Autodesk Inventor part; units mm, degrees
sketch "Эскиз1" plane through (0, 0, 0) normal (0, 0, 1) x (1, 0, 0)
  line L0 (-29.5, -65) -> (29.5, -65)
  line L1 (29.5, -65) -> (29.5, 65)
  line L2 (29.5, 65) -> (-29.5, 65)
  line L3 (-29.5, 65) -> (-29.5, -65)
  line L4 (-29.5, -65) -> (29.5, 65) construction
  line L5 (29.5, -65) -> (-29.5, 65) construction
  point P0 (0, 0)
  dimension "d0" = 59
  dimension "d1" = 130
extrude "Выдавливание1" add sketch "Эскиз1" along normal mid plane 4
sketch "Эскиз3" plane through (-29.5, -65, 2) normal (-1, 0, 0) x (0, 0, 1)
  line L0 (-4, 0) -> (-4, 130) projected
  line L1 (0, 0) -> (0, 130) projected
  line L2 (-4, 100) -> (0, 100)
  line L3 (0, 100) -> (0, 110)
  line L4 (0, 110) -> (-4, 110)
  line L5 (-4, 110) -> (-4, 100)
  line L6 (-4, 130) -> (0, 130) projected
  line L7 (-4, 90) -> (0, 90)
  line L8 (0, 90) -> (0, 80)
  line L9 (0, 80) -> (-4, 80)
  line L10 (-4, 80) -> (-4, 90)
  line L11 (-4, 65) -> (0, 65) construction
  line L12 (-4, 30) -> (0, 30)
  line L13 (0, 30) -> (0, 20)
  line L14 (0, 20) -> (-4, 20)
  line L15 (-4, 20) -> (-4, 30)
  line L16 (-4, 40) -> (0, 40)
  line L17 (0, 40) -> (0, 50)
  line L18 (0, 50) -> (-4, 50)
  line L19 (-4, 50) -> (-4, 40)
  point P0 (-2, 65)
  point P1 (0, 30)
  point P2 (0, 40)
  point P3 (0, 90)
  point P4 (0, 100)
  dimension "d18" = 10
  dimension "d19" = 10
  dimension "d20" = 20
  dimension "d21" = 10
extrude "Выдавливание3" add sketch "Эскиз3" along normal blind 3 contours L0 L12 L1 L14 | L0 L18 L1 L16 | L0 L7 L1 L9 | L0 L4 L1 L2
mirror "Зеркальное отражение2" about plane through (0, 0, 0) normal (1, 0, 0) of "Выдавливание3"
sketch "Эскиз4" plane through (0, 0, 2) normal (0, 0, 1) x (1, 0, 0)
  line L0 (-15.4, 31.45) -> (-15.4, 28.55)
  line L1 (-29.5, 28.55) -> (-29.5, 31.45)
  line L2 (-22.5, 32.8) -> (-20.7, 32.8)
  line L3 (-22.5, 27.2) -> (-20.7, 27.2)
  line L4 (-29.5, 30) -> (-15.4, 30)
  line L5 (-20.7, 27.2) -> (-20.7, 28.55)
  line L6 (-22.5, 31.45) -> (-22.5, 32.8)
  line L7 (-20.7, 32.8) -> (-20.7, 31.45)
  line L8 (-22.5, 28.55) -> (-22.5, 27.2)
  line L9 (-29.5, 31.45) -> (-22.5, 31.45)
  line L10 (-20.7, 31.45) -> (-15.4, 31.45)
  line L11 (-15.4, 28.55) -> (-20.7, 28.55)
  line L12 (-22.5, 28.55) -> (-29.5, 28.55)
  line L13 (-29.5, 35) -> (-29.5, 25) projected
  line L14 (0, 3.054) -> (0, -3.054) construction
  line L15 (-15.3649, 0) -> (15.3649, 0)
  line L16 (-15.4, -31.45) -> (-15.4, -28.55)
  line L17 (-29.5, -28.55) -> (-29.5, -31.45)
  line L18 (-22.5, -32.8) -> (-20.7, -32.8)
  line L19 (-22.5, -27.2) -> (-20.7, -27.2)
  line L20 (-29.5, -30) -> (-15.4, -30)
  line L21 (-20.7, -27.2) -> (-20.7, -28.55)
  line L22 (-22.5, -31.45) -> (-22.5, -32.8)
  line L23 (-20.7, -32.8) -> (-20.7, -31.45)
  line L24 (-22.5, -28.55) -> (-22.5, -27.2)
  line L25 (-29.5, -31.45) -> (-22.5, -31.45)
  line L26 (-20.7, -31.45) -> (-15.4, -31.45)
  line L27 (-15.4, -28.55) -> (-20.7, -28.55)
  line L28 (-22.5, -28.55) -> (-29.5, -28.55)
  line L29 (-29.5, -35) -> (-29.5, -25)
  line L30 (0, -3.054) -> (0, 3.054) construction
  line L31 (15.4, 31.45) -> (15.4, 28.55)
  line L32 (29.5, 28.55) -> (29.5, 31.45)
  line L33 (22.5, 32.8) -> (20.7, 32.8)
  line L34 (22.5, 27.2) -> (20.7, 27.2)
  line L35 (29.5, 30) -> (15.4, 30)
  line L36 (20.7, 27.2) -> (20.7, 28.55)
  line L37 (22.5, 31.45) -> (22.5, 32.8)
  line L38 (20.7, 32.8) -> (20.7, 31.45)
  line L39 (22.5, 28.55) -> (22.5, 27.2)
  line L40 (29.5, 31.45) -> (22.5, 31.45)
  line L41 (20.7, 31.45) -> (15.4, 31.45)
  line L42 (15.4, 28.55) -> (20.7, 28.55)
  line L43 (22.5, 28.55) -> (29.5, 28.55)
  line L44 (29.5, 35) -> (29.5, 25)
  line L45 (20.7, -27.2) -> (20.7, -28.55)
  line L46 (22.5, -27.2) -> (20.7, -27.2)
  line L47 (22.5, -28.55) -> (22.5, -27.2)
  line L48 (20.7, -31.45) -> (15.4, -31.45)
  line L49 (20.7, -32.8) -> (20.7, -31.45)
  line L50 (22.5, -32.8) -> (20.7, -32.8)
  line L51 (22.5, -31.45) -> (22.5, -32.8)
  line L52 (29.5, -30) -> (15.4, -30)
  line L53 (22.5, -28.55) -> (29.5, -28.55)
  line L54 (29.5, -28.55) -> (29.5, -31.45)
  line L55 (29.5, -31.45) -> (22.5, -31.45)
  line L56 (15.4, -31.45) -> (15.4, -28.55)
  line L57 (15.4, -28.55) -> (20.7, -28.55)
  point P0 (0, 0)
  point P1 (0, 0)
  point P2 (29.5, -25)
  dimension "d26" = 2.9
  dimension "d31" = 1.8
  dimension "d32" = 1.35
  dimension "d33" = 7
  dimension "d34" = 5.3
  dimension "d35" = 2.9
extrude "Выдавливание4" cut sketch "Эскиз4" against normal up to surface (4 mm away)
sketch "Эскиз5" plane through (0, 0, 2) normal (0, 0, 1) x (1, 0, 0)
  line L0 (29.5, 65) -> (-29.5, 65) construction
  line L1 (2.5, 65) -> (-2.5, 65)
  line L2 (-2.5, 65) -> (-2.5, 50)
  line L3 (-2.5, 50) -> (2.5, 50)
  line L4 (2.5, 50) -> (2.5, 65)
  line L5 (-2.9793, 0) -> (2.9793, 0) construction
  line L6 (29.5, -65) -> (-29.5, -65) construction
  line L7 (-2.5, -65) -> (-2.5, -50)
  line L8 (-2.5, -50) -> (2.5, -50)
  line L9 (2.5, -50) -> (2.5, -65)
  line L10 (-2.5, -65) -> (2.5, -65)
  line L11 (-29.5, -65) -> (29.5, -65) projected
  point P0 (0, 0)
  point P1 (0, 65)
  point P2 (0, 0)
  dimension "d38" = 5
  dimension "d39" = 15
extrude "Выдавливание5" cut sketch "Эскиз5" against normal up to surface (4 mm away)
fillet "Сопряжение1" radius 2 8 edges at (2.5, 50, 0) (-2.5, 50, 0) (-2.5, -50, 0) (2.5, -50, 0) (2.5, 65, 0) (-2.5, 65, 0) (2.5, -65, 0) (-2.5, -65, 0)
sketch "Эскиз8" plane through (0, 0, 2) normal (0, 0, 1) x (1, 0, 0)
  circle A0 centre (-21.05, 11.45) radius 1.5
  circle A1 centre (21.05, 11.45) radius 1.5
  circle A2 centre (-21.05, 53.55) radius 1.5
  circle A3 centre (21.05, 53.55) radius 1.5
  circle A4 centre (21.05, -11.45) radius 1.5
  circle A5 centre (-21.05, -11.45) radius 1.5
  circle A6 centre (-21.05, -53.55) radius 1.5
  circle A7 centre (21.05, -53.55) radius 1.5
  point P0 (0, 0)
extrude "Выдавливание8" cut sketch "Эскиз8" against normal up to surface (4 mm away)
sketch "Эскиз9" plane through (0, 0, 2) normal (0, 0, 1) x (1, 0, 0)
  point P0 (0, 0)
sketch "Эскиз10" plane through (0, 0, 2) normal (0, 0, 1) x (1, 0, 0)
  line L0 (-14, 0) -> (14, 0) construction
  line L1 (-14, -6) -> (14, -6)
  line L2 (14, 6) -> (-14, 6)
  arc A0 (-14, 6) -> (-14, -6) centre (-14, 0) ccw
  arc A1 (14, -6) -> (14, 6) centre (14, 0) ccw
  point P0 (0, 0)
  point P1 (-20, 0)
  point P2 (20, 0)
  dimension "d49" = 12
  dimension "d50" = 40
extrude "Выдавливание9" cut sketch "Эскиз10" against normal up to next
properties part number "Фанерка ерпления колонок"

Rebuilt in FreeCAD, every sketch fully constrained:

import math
import FreeCAD as App
import Part
import Sketcher


def edges_at(feature, points):
    """Names of the edges that pass closest to the given points."""
    edges = feature.Shape.Edges
    near = lambda p: min(range(len(edges)), key=lambda i: edges[i].distToShape(Part.Vertex(*p))[0])
    return sorted({f"Edge{near(p) + 1}" for p in points})


def add_polygon(sketch, points):
    """Adds a closed chain of lines whose ends are joined by coincident constraints."""
    first, n = sketch.GeometryCount, len(points)
    for a, b in zip(points, points[1:] + points[:1]):
        sketch.addGeometry(Part.LineSegment(App.Vector(*a, 0), App.Vector(*b, 0)), False)
    for i in range(n):
        sketch.addConstraint(Sketcher.Constraint("Coincident", first + i, 2, first + (i + 1) % n, 1))

doc = App.newDocument("Part")
params = doc.addObject("Spreadsheet::Sheet", "Params")
for row, (alias, value) in enumerate([
    ("sketch1_width", "59 mm"),
    ("sketch1_height", "130 mm"),
    ("pad1_length", "4 mm"),
    ("sketch2_width", "10 mm"),
    ("sketch2_height", "4 mm"),
    ("pad2_length", "3 mm"),
    ("sketch3_width", "7 mm"),
    ("sketch3_width2", "5.3 mm"),
    ("sketch3_width3", "1.8 mm"),
    ("sketch3_height", "2.9 mm"),
    ("sketch3_height2", "1.35 mm"),
    ("pocket1_length", "4 mm"),
    ("sketch4_width", "5 mm"),
    ("sketch4_height", "15 mm"),
    ("pocket2_length", "4 mm"),
    ("fillet_radius", "2 mm"),
    ("sketch5_diameter", "3 mm"),
    ("pocket3_length", "4 mm"),
    ("sketch6_radius", "6 mm"),
    ("sketch6_width", "28 mm"),
], start=1):
    params.set(f"A{row}", alias)
    params.set(f"B{row}", "=" + value)
    params.setAlias(f"B{row}", alias)

body = doc.addObject("PartDesign::Body", "Body")

# Sketch on XY plane
sketch1 = body.newObject("Sketcher::SketchObject", "Sketch")
sketch1.AttachmentSupport = (doc.getObject("XY_Plane"), [""])
sketch1.MapMode = "FlatFace"
add_polygon(sketch1, [(-30, 65), (-30, -65), (30, -65), (30, 65)])  # lines 0-3
sketch1.addConstraint(Sketcher.Constraint("Vertical", 0))
sketch1.addConstraint(Sketcher.Constraint("Horizontal", 1))
sketch1.addConstraint(Sketcher.Constraint("Vertical", 2))
sketch1.addConstraint(Sketcher.Constraint("Horizontal", 3))
sketch1.addConstraint(Sketcher.Constraint("Symmetric", 0, 2, 2, 2, -1, 1))
sketch1.addConstraint(Sketcher.Constraint("DistanceX", 1, 1, 1, 2, 59.0))
sketch1.addConstraint(Sketcher.Constraint("DistanceY", 0, 2, 0, 1, 130.0))
sketch1.setExpression("Constraints[9]", "Params.sketch1_width")
sketch1.setExpression("Constraints[10]", "Params.sketch1_height")
pad1 = body.newObject("PartDesign::Pad", "Pad")
pad1.Profile = sketch1
pad1.setExpression("Length", "Params.pad1_length")
pad1.Midplane = True

# Sketch on YZ plane
sketch2 = body.newObject("Sketcher::SketchObject", "Sketch001")
sketch2.AttachmentSupport = (doc.getObject("YZ_Plane"), [""])
sketch2.MapMode = "FlatFace"
sketch2.AttachmentOffset = App.Placement(App.Vector(0, 0, -29.5), App.Rotation())
add_polygon(sketch2, [(-35, -2), (-45, -2), (-45, 2), (-35, 2)])  # lines 0-3
add_polygon(sketch2, [(-15, -2), (-25, -2), (-25, 2), (-15, 2)])  # lines 4-7
add_polygon(sketch2, [(25, -2), (15, -2), (15, 2), (25, 2)])  # lines 8-11
add_polygon(sketch2, [(45, -2), (35, -2), (35, 2), (45, 2)])  # lines 12-15
sketch2.addConstraint(Sketcher.Constraint("Horizontal", 0))
sketch2.addConstraint(Sketcher.Constraint("Vertical", 1))
sketch2.addConstraint(Sketcher.Constraint("Horizontal", 2))
sketch2.addConstraint(Sketcher.Constraint("Vertical", 3))
sketch2.addConstraint(Sketcher.Constraint("Horizontal", 4))
sketch2.addConstraint(Sketcher.Constraint("Vertical", 5))
sketch2.addConstraint(Sketcher.Constraint("Horizontal", 6))
sketch2.addConstraint(Sketcher.Constraint("Vertical", 7))
sketch2.addConstraint(Sketcher.Constraint("Horizontal", 8))
sketch2.addConstraint(Sketcher.Constraint("Vertical", 9))
sketch2.addConstraint(Sketcher.Constraint("Horizontal", 10))
sketch2.addConstraint(Sketcher.Constraint("Vertical", 11))
sketch2.addConstraint(Sketcher.Constraint("Horizontal", 12))
sketch2.addConstraint(Sketcher.Constraint("Vertical", 13))
sketch2.addConstraint(Sketcher.Constraint("Horizontal", 14))
sketch2.addConstraint(Sketcher.Constraint("Vertical", 15))
sketch2.addConstraint(Sketcher.Constraint("Symmetric", 6, 2, 8, 2, -1, 1))
sketch2.addConstraint(Sketcher.Constraint("Symmetric", 4, 2, 10, 2, -1, 1))
sketch2.addConstraint(Sketcher.Constraint("Symmetric", 2, 2, 12, 2, -1, 1))
sketch2.addConstraint(Sketcher.Constraint("Symmetric", 0, 2, 14, 2, -1, 1))
sketch2.addConstraint(Sketcher.Constraint("Horizontal", 3, 2, 4, 2))
sketch2.addConstraint(Sketcher.Constraint("Horizontal", 2, 2, 5, 2))
sketch2.addConstraint(Sketcher.Constraint("Horizontal", 7, 2, 8, 2))
sketch2.addConstraint(Sketcher.Constraint("Equal", 2, 4))
sketch2.addConstraint(Sketcher.Constraint("DistanceX", 0, 2, 0, 1, 10.0))
sketch2.addConstraint(Sketcher.Constraint("DistanceX", 3, 2, 4, 2, 10.0))
sketch2.addConstraint(Sketcher.Constraint("DistanceY", 1, 1, 1, 2, 4.0))
sketch2.addConstraint(Sketcher.Constraint("DistanceX", 0, 2, -1, 1, 45.0))
sketch2.setExpression("Constraints[40]", "Params.sketch2_width")
sketch2.setExpression("Constraints[42]", "Params.sketch2_height")
pad2 = body.newObject("PartDesign::Pad", "Pad001")
pad2.Profile = sketch2
pad2.setExpression("Length", "Params.pad2_length")
pad2.Reversed = True
doc.recompute()

mirrored = body.newObject("PartDesign::Mirrored", "Mirrored")
mirrored.Originals = [pad2]
mirrored.MirrorPlane = (doc.getObject("YZ_Plane"), [""])
body.Tip = mirrored

# Sketch on XY plane
sketch3 = body.newObject("Sketcher::SketchObject", "Sketch002")
sketch3.AttachmentSupport = (doc.getObject("XY_Plane"), [""])
sketch3.MapMode = "FlatFace"
sketch3.AttachmentOffset = App.Placement(App.Vector(0, 0, 2), App.Rotation())
add_polygon(sketch3, [(-15.4, 31.4), (-20.7, 31.4), (-20.7, 32.8), (-22.5, 32.8), (-22.5, 31.4), (-29.5, 31.4), (-29.5, 28.6), (-22.5, 28.6), (-22.5, 27.2), (-20.7, 27.2), (-20.7, 28.6), (-15.4, 28.6)])  # lines 0-11
add_polygon(sketch3, [(-20.7, -31.4), (-15.4, -31.4), (-15.4, -28.6), (-20.7, -28.6), (-20.7, -27.2), (-22.5, -27.2), (-22.5, -28.6), (-29.5, -28.6), (-29.5, -31.4), (-22.5, -31.4), (-22.5, -32.8), (-20.7, -32.8)])  # lines 12-23
add_polygon(sketch3, [(20.7, 31.4), (15.4, 31.4), (15.4, 28.6), (20.7, 28.6), (20.7, 27.2), (22.5, 27.2), (22.5, 28.6), (29.5, 28.6), (29.5, 31.4), (22.5, 31.4), (22.5, 32.8), (20.7, 32.8)])  # lines 24-35
add_polygon(sketch3, [(22.5, -27.2), (20.7, -27.2), (20.7, -28.6), (15.4, -28.6), (15.4, -31.4), (20.7, -31.4), (20.7, -32.8), (22.5, -32.8), (22.5, -31.4), (29.5, -31.4), (29.5, -28.6), (22.5, -28.6)])  # lines 36-47
sketch3.addConstraint(Sketcher.Constraint("Horizontal", 0))
sketch3.addConstraint(Sketcher.Constraint("Vertical", 1))
sketch3.addConstraint(Sketcher.Constraint("Horizontal", 2))
sketch3.addConstraint(Sketcher.Constraint("Vertical", 3))
sketch3.addConstraint(Sketcher.Constraint("Horizontal", 4))
sketch3.addConstraint(Sketcher.Constraint("Vertical", 5))
sketch3.addConstraint(Sketcher.Constraint("Horizontal", 6))
sketch3.addConstraint(Sketcher.Constraint("Vertical", 7))
sketch3.addConstraint(Sketcher.Constraint("Horizontal", 8))
sketch3.addConstraint(Sketcher.Constraint("Vertical", 9))
sketch3.addConstraint(Sketcher.Constraint("Horizontal", 10))
sketch3.addConstraint(Sketcher.Constraint("Vertical", 11))
sketch3.addConstraint(Sketcher.Constraint("Horizontal", 12))
sketch3.addConstraint(Sketcher.Constraint("Vertical", 13))
sketch3.addConstraint(Sketcher.Constraint("Horizontal", 14))
sketch3.addConstraint(Sketcher.Constraint("Vertical", 15))
sketch3.addConstraint(Sketcher.Constraint("Horizontal", 16))
sketch3.addConstraint(Sketcher.Constraint("Vertical", 17))
sketch3.addConstraint(Sketcher.Constraint("Horizontal", 18))
sketch3.addConstraint(Sketcher.Constraint("Vertical", 19))
sketch3.addConstraint(Sketcher.Constraint("Horizontal", 20))
sketch3.addConstraint(Sketcher.Constraint("Vertical", 21))
sketch3.addConstraint(Sketcher.Constraint("Horizontal", 22))
sketch3.addConstraint(Sketcher.Constraint("Vertical", 23))
sketch3.addConstraint(Sketcher.Constraint("Horizontal", 24))
sketch3.addConstraint(Sketcher.Constraint("Vertical", 25))
sketch3.addConstraint(Sketcher.Constraint("Horizontal", 26))
sketch3.addConstraint(Sketcher.Constraint("Vertical", 27))
sketch3.addConstraint(Sketcher.Constraint("Horizontal", 28))
sketch3.addConstraint(Sketcher.Constraint("Vertical", 29))
sketch3.addConstraint(Sketcher.Constraint("Horizontal", 30))
sketch3.addConstraint(Sketcher.Constraint("Vertical", 31))
sketch3.addConstraint(Sketcher.Constraint("Horizontal", 32))
sketch3.addConstraint(Sketcher.Constraint("Vertical", 33))
sketch3.addConstraint(Sketcher.Constraint("Horizontal", 34))
sketch3.addConstraint(Sketcher.Constraint("Vertical", 35))
sketch3.addConstraint(Sketcher.Constraint("Horizontal", 36))
sketch3.addConstraint(Sketcher.Constraint("Vertical", 37))
sketch3.addConstraint(Sketcher.Constraint("Horizontal", 38))
sketch3.addConstraint(Sketcher.Constraint("Vertical", 39))
sketch3.addConstraint(Sketcher.Constraint("Horizontal", 40))
sketch3.addConstraint(Sketcher.Constraint("Vertical", 41))
sketch3.addConstraint(Sketcher.Constraint("Horizontal", 42))
sketch3.addConstraint(Sketcher.Constraint("Vertical", 43))
sketch3.addConstraint(Sketcher.Constraint("Horizontal", 44))
sketch3.addConstraint(Sketcher.Constraint("Vertical", 45))
sketch3.addConstraint(Sketcher.Constraint("Horizontal", 46))
sketch3.addConstraint(Sketcher.Constraint("Vertical", 47))
sketch3.addConstraint(Sketcher.Constraint("Symmetric", 12, 2, 24, 2, -1, 1))
sketch3.addConstraint(Sketcher.Constraint("Symmetric", 14, 2, 26, 2, -1, 1))
sketch3.addConstraint(Sketcher.Constraint("Symmetric", 16, 2, 28, 2, -1, 1))
sketch3.addConstraint(Sketcher.Constraint("Symmetric", 18, 2, 30, 2, -1, 1))
sketch3.addConstraint(Sketcher.Constraint("Symmetric", 20, 2, 32, 2, -1, 1))
sketch3.addConstraint(Sketcher.Constraint("Symmetric", 22, 2, 34, 2, -1, 1))
sketch3.addConstraint(Sketcher.Constraint("Symmetric", 8, 2, 36, 2, -1, 1))
sketch3.addConstraint(Sketcher.Constraint("Symmetric", 10, 2, 38, 2, -1, 1))
sketch3.addConstraint(Sketcher.Constraint("Symmetric", 0, 2, 40, 2, -1, 1))
sketch3.addConstraint(Sketcher.Constraint("Symmetric", 2, 2, 42, 2, -1, 1))
sketch3.addConstraint(Sketcher.Constraint("Symmetric", 4, 2, 44, 2, -1, 1))
sketch3.addConstraint(Sketcher.Constraint("Symmetric", 6, 2, 46, 2, -1, 1))
sketch3.addConstraint(Sketcher.Constraint("Symmetric", 11, 2, 24, 2, -2))
sketch3.addConstraint(Sketcher.Constraint("Symmetric", 9, 2, 26, 2, -2))
sketch3.addConstraint(Sketcher.Constraint("Symmetric", 7, 2, 28, 2, -2))
sketch3.addConstraint(Sketcher.Constraint("Symmetric", 5, 2, 30, 2, -2))
sketch3.addConstraint(Sketcher.Constraint("Symmetric", 3, 2, 32, 2, -2))
sketch3.addConstraint(Sketcher.Constraint("Symmetric", 1, 2, 34, 2, -2))
sketch3.addConstraint(Sketcher.Constraint("Horizontal", 0, 2, 3, 2))
sketch3.addConstraint(Sketcher.Constraint("Horizontal", 6, 2, 9, 2))
sketch3.addConstraint(Sketcher.Constraint("Vertical", 3, 2, 6, 2))
sketch3.addConstraint(Sketcher.Constraint("Vertical", 1, 2, 8, 2))
sketch3.addConstraint(Sketcher.Constraint("Equal", 3, 7))
sketch3.addConstraint(Sketcher.Constraint("DistanceX", 4, 2, 4, 1, 7.0))
sketch3.addConstraint(Sketcher.Constraint("DistanceX", 0, 2, 0, 1, 5.3))
sketch3.addConstraint(Sketcher.Constraint("DistanceX", 2, 2, 2, 1, 1.8))
sketch3.addConstraint(Sketcher.Constraint("DistanceY", 5, 2, 5, 1, 2.9))
sketch3.addConstraint(Sketcher.Constraint("DistanceY", 1, 1, 1, 2, 1.35))
sketch3.addConstraint(Sketcher.Constraint("DistanceY", 12, 2, 10, 2, 60.0))
sketch3.addConstraint(Sketcher.Constraint("DistanceX", 0, 2, -1, 1, 20.7))
sketch3.setExpression("Constraints[119]", "Params.sketch3_width")
sketch3.setExpression("Constraints[120]", "Params.sketch3_width2")
sketch3.setExpression("Constraints[121]", "Params.sketch3_width3")
sketch3.setExpression("Constraints[122]", "Params.sketch3_height")
sketch3.setExpression("Constraints[123]", "Params.sketch3_height2")
pocket1 = body.newObject("PartDesign::Pocket", "Pocket")
pocket1.Profile = sketch3
pocket1.setExpression("Length", "Params.pocket1_length")

# Sketch on XY plane
sketch4 = body.newObject("Sketcher::SketchObject", "Sketch003")
sketch4.AttachmentSupport = (doc.getObject("XY_Plane"), [""])
sketch4.MapMode = "FlatFace"
sketch4.AttachmentOffset = App.Placement(App.Vector(0, 0, 2), App.Rotation())
add_polygon(sketch4, [(2, 50), (2, 65), (-2, 65), (-2, 50)])  # lines 0-3
add_polygon(sketch4, [(-2, -50), (-2, -65), (2, -65), (2, -50)])  # lines 4-7
sketch4.addConstraint(Sketcher.Constraint("Vertical", 0))
sketch4.addConstraint(Sketcher.Constraint("Horizontal", 1))
sketch4.addConstraint(Sketcher.Constraint("Vertical", 2))
sketch4.addConstraint(Sketcher.Constraint("Horizontal", 3))
sketch4.addConstraint(Sketcher.Constraint("Vertical", 4))
sketch4.addConstraint(Sketcher.Constraint("Horizontal", 5))
sketch4.addConstraint(Sketcher.Constraint("Vertical", 6))
sketch4.addConstraint(Sketcher.Constraint("Horizontal", 7))
sketch4.addConstraint(Sketcher.Constraint("Symmetric", 0, 2, 4, 2, -1, 1))
sketch4.addConstraint(Sketcher.Constraint("Symmetric", 2, 2, 6, 2, -1, 1))
sketch4.addConstraint(Sketcher.Constraint("Vertical", 2, 2, 4, 2))
sketch4.addConstraint(Sketcher.Constraint("DistanceX", 1, 2, 1, 1, 5.0))
sketch4.addConstraint(Sketcher.Constraint("DistanceY", 0, 1, 0, 2, 15.0))
sketch4.addConstraint(Sketcher.Constraint("DistanceY", -1, 1, 0, 2, 65.0))
sketch4.setExpression("Constraints[19]", "Params.sketch4_width")
sketch4.setExpression("Constraints[20]", "Params.sketch4_height")
pocket2 = body.newObject("PartDesign::Pocket", "Pocket001")
pocket2.Profile = sketch4
pocket2.setExpression("Length", "Params.pocket2_length")
doc.recompute()

fillet = body.newObject("PartDesign::Fillet", "Fillet")
fillet.Base = (pocket2, edges_at(pocket2, [
    (2.5, 50, 0),
    (-2.5, 50, 0),
    (-2.5, -50, 0),
    (2.5, -50, 0),
    (2.5, 65, 0),
    (-2.5, 65, 0),
    (2.5, -65, 0),
    (-2.5, -65, 0),
]))
fillet.setExpression("Radius", "Params.fillet_radius")

# Sketch on XY plane
sketch5 = body.newObject("Sketcher::SketchObject", "Sketch004")
sketch5.AttachmentSupport = (doc.getObject("XY_Plane"), [""])
sketch5.MapMode = "FlatFace"
sketch5.AttachmentOffset = App.Placement(App.Vector(0, 0, 2), App.Rotation())
sketch5.addGeometry(Part.Circle(App.Vector(-21.1, 11.4, 0), App.Vector(0, 0, 1), 1.5), False)
sketch5.addGeometry(Part.Circle(App.Vector(21.1, 11.4, 0), App.Vector(0, 0, 1), 1.5), False)
sketch5.addGeometry(Part.Circle(App.Vector(-21.1, 53.5, 0), App.Vector(0, 0, 1), 1.5), False)
sketch5.addGeometry(Part.Circle(App.Vector(21.1, 53.5, 0), App.Vector(0, 0, 1), 1.5), False)
sketch5.addGeometry(Part.Circle(App.Vector(21.1, -11.4, 0), App.Vector(0, 0, 1), 1.5), False)
sketch5.addGeometry(Part.Circle(App.Vector(-21.1, -11.4, 0), App.Vector(0, 0, 1), 1.5), False)
sketch5.addGeometry(Part.Circle(App.Vector(-21.1, -53.5, 0), App.Vector(0, 0, 1), 1.5), False)
sketch5.addGeometry(Part.Circle(App.Vector(21.1, -53.5, 0), App.Vector(0, 0, 1), 1.5), False)
sketch5.addConstraint(Sketcher.Constraint("Equal", 0, 1))
sketch5.addConstraint(Sketcher.Constraint("Equal", 1, 2))
sketch5.addConstraint(Sketcher.Constraint("Equal", 2, 3))
sketch5.addConstraint(Sketcher.Constraint("Equal", 3, 4))
sketch5.addConstraint(Sketcher.Constraint("Equal", 4, 5))
sketch5.addConstraint(Sketcher.Constraint("Equal", 5, 6))
sketch5.addConstraint(Sketcher.Constraint("Equal", 6, 7))
sketch5.addConstraint(Sketcher.Constraint("Symmetric", 0, 3, 4, 3, -1, 1))
sketch5.addConstraint(Sketcher.Constraint("Symmetric", 1, 3, 5, 3, -1, 1))
sketch5.addConstraint(Sketcher.Constraint("Symmetric", 3, 3, 6, 3, -1, 1))
sketch5.addConstraint(Sketcher.Constraint("Symmetric", 2, 3, 7, 3, -1, 1))
sketch5.addConstraint(Sketcher.Constraint("Symmetric", 0, 3, 1, 3, -2))
sketch5.addConstraint(Sketcher.Constraint("Symmetric", 2, 3, 3, 3, -2))
sketch5.addConstraint(Sketcher.Constraint("Vertical", 0, 3, 2, 3))
sketch5.addConstraint(Sketcher.Constraint("Diameter", 0, 3.0))
sketch5.addConstraint(Sketcher.Constraint("DistanceY", 4, 3, 3, 3, 65.0))
sketch5.addConstraint(Sketcher.Constraint("DistanceX", 0, 3, 1, 3, 42.1))
sketch5.addConstraint(Sketcher.Constraint("DistanceY", 0, 3, 2, 3, 42.1))
sketch5.setExpression("Constraints[14]", "Params.sketch5_diameter")
pocket3 = body.newObject("PartDesign::Pocket", "Pocket002")
pocket3.Profile = sketch5
pocket3.setExpression("Length", "Params.pocket3_length")

# Sketch on XY plane
sketch6 = body.newObject("Sketcher::SketchObject", "Sketch005")
sketch6.AttachmentSupport = (doc.getObject("XY_Plane"), [""])
sketch6.MapMode = "FlatFace"
sketch6.AttachmentOffset = App.Placement(App.Vector(0, 0, 2), App.Rotation())
sketch6.addGeometry(Part.ArcOfCircle(Part.Circle(App.Vector(-14, 0, 0), App.Vector(0, 0, 1), 6), math.radians(90), math.radians(270)), False)
sketch6.addGeometry(Part.LineSegment(App.Vector(-14, -6, 0), App.Vector(14, -6, 0)), False)
sketch6.addGeometry(Part.ArcOfCircle(Part.Circle(App.Vector(14, 0, 0), App.Vector(0, 0, 1), 6), math.radians(-90), math.radians(90)), False)
sketch6.addGeometry(Part.LineSegment(App.Vector(14, 6, 0), App.Vector(-14, 6, 0)), False)
sketch6.addConstraint(Sketcher.Constraint("Tangent", 0, 2, 1, 1))
sketch6.addConstraint(Sketcher.Constraint("Tangent", 1, 2, 2, 1))
sketch6.addConstraint(Sketcher.Constraint("Tangent", 2, 2, 3, 1))
sketch6.addConstraint(Sketcher.Constraint("Tangent", 3, 2, 0, 1))
sketch6.addConstraint(Sketcher.Constraint("Horizontal", 1))
sketch6.addConstraint(Sketcher.Constraint("Horizontal", 3))
sketch6.addConstraint(Sketcher.Constraint("Symmetric", 0, 3, 2, 3, -1, 1))
sketch6.addConstraint(Sketcher.Constraint("Radius", 0, 6.0))
sketch6.addConstraint(Sketcher.Constraint("DistanceX", 1, 1, 1, 2, 28.0))
sketch6.setExpression("Constraints[7]", "Params.sketch6_radius")
sketch6.setExpression("Constraints[8]", "Params.sketch6_width")
pocket4 = body.newObject("PartDesign::Pocket", "Pocket003")
pocket4.Profile = sketch6
pocket4.Type = "UpToFirst"

doc.recompute()
